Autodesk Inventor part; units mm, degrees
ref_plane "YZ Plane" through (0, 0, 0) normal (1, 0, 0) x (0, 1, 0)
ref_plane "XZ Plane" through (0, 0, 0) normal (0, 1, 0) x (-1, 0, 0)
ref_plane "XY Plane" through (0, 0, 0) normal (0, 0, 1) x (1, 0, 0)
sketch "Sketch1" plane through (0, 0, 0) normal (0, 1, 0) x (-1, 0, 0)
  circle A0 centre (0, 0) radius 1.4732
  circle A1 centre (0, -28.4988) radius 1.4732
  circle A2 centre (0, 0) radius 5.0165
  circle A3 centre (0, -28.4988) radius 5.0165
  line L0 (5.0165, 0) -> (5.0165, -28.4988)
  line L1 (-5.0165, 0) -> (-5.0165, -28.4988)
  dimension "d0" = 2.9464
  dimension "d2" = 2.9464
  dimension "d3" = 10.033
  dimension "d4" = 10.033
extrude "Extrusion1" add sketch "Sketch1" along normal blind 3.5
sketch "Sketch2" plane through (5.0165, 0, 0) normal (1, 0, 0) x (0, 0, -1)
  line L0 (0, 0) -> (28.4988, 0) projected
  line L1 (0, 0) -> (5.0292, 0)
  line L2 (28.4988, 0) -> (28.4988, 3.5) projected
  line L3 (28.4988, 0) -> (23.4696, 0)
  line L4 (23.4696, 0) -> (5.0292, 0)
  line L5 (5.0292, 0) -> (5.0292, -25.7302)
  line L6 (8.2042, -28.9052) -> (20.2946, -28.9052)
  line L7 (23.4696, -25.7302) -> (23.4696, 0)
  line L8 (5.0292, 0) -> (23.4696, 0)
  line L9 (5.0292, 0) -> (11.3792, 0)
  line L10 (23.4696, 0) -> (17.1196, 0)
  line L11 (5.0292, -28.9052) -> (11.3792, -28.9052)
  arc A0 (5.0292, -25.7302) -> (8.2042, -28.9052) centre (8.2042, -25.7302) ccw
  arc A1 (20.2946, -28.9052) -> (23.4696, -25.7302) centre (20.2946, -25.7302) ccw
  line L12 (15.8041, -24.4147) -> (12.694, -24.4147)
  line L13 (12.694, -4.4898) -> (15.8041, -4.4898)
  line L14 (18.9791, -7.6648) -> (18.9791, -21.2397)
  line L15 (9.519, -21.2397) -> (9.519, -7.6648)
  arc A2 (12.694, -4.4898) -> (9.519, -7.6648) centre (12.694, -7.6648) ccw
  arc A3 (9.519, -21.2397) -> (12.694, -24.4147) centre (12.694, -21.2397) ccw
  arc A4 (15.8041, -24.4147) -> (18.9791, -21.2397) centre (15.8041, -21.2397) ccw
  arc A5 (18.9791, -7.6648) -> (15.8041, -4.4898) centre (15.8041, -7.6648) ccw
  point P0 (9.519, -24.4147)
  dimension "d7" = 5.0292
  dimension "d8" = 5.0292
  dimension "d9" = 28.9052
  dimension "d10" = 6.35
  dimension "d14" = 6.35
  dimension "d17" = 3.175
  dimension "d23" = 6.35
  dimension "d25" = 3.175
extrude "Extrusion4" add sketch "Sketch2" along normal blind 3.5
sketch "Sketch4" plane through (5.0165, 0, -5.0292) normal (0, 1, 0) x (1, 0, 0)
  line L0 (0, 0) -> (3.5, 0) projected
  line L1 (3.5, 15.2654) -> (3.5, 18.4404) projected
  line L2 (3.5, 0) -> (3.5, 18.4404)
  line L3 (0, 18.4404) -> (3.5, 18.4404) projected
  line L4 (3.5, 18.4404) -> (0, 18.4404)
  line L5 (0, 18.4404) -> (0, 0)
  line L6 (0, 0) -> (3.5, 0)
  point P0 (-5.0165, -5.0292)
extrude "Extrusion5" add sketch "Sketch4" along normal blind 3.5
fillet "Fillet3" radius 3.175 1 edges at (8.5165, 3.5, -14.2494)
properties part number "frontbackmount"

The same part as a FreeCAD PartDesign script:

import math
import FreeCAD as App
import Part
import Sketcher
Q = App.Units.Quantity


def edges_at(feature, points):
    """Names of the edges that pass closest to the given points."""
    edges = feature.Shape.Edges
    near = lambda p: min(range(len(edges)), key=lambda i: edges[i].distToShape(Part.Vertex(*p))[0])
    return sorted({f"Edge{near(p) + 1}" for p in points})

doc = App.newDocument("Part")
body = doc.addObject("PartDesign::Body", "Body")
body.AllowCompound = True

sketch1 = body.newObject("Sketcher::SketchObject", "Sketch")
sketch1.AttachmentSupport = (doc.getObject("XZ_Plane"), [""])
sketch1.MapMode = "FlatFace"
sketch1.addGeometry([
    Part.ArcOfCircle(Part.Circle(App.Vector(0, 0, 0), App.Vector(0, 0, 1), 5), math.radians(0), math.radians(180)),
    Part.LineSegment(App.Vector(5, 0, 0), App.Vector(5, -28.5, 0)),
    Part.ArcOfCircle(Part.Circle(App.Vector(0, -28.5, 0), App.Vector(0, 0, 1), 5), math.radians(180), math.radians(360)),
    Part.LineSegment(App.Vector(-5, -28.5, 0), App.Vector(-5, 0, 0)),
    Part.Circle(App.Vector(0, 0, 0), App.Vector(0, 0, 1), 1.5),
    Part.Circle(App.Vector(0, -28.5, 0), App.Vector(0, 0, 1), 1.5),
], False)
sketch1.addConstraint([
    Sketcher.Constraint("Tangent", 0, 1, 1, 1),
    Sketcher.Constraint("Tangent", 1, 2, 2, 2),
    Sketcher.Constraint("Tangent", 2, 1, 3, 1),
    Sketcher.Constraint("Tangent", 3, 2, 0, 2),
    Sketcher.Constraint("Vertical", 1),
    Sketcher.Constraint("Vertical", 3),
    Sketcher.Constraint("Coincident", 0, 3, -1, 1),
    Sketcher.Constraint("Coincident", 4, 3, -1, 1),
    Sketcher.Constraint("Coincident", 5, 3, 2, 3),
    Sketcher.Constraint("Equal", 4, 5),
    Sketcher.Constraint("Diameter", 4, Q("0.116 in")),
    Sketcher.Constraint("Radius", 0, Q("0.1975 in")),
    Sketcher.Constraint("DistanceY", 1, 2, 1, 1, Q("1.122 in")),
])
pad1 = body.newObject("PartDesign::Pad", "Pad")
pad1.Profile = sketch1
pad1.Length = Q("0.1377953 in")
pad1.Reversed = True

sketch2 = body.newObject("Sketcher::SketchObject", "Sketch001")
sketch2.AttachmentSupport = (doc.getObject("YZ_Plane"), [""])
sketch2.MapMode = "FlatFace"
sketch2.AttachmentOffset = App.Placement(App.Vector(0, 0, 0.1975 * 25.4), App.Rotation())
sketch2.addGeometry([
    Part.LineSegment(App.Vector(0, -23.5, 0), App.Vector(0, -5, 0)),
    Part.LineSegment(App.Vector(0, -5, 0), App.Vector(-25.7, -5, 0)),
    Part.ArcOfCircle(Part.Circle(App.Vector(-25.7, -8.2, 0), App.Vector(0, 0, 1), 3.2), math.radians(90), math.radians(180)),
    Part.LineSegment(App.Vector(-28.9, -8.2, 0), App.Vector(-28.9, -20.3, 0)),
    Part.ArcOfCircle(Part.Circle(App.Vector(-25.7, -20.3, 0), App.Vector(0, 0, 1), 3.2), math.radians(180), math.radians(270)),
    Part.LineSegment(App.Vector(-25.7, -23.5, 0), App.Vector(0, -23.5, 0)),
    Part.ArcOfCircle(Part.Circle(App.Vector(-21.2, -15.8, 0), App.Vector(0, 0, 1), 3.2), math.radians(180), math.radians(270)),
    Part.LineSegment(App.Vector(-24.4, -15.8, 0), App.Vector(-24.4, -12.7, 0)),
    Part.ArcOfCircle(Part.Circle(App.Vector(-21.2, -12.7, 0), App.Vector(0, 0, 1), 3.2), math.radians(90), math.radians(180)),
    Part.LineSegment(App.Vector(-21.2, -9.5, 0), App.Vector(-7.7, -9.5, 0)),
    Part.ArcOfCircle(Part.Circle(App.Vector(-7.7, -12.7, 0), App.Vector(0, 0, 1), 3.2), math.radians(0), math.radians(90)),
    Part.LineSegment(App.Vector(-4.5, -12.7, 0), App.Vector(-4.5, -15.8, 0)),
    Part.ArcOfCircle(Part.Circle(App.Vector(-7.7, -15.8, 0), App.Vector(0, 0, 1), 3.2), math.radians(-90), math.radians(0)),
    Part.LineSegment(App.Vector(-7.7, -19, 0), App.Vector(-21.2, -19, 0)),
], False)
sketch2.addConstraint([
    Sketcher.Constraint("Coincident", 0, 2, 1, 1),
    Sketcher.Constraint("Tangent", 1, 2, 2, 1),
    Sketcher.Constraint("Tangent", 2, 2, 3, 1),
    Sketcher.Constraint("Tangent", 3, 2, 4, 1),
    Sketcher.Constraint("Tangent", 4, 2, 5, 1),
    Sketcher.Constraint("Coincident", 5, 2, 0, 1),
    Sketcher.Constraint("Tangent", 6, 1, 7, 1),
    Sketcher.Constraint("Tangent", 7, 2, 8, 2),
    Sketcher.Constraint("Tangent", 8, 1, 9, 1),
    Sketcher.Constraint("Tangent", 9, 2, 10, 2),
    Sketcher.Constraint("Tangent", 10, 1, 11, 1),
    Sketcher.Constraint("Tangent", 11, 2, 12, 2),
    Sketcher.Constraint("Tangent", 12, 1, 13, 1),
    Sketcher.Constraint("Tangent", 13, 2, 6, 2),
    Sketcher.Constraint("Vertical", 0),
    Sketcher.Constraint("Horizontal", 1),
    Sketcher.Constraint("Vertical", 3),
    Sketcher.Constraint("Horizontal", 5),
    Sketcher.Constraint("Vertical", 7),
    Sketcher.Constraint("Horizontal", 9),
    Sketcher.Constraint("Vertical", 11),
    Sketcher.Constraint("Horizontal", 13),
    Sketcher.Constraint("Equal", 2, 4),
    Sketcher.Constraint("Equal", 4, 6),
    Sketcher.Constraint("Equal", 6, 8),
    Sketcher.Constraint("Equal", 8, 10),
    Sketcher.Constraint("Equal", 10, 12),
    Sketcher.Constraint("PointOnObject", 0, 2, -2),
    Sketcher.Constraint("Radius", 2, Q("0.125 in")),
    Sketcher.Constraint("DistanceY", 0, 2, -1, 1, Q("0.198 in")),
    Sketcher.Constraint("DistanceX", 2, 2, -1, 1, Q("1.138 in")),
    Sketcher.Constraint("DistanceY", 0, 1, 0, 2, Q("0.726 in")),
    Sketcher.Constraint("DistanceX", 9, 1, 9, 2, Q("13.575 mm")),
    Sketcher.Constraint("DistanceY", 7, 1, 7, 2, Q("3.11 mm")),
    Sketcher.Constraint("DistanceX", 6, 3, -1, 1, Q("0.8362 in")),
    Sketcher.Constraint("DistanceY", 6, 3, -1, 1, Q("0.6222 in")),
])
pad2 = body.newObject("PartDesign::Pad", "Pad001")
pad2.Profile = sketch2
pad2.Length = Q("0.1377953 in")

sketch3 = body.newObject("Sketcher::SketchObject", "Sketch002")
sketch3.AttachmentSupport = (doc.getObject("XZ_Plane"), [""])
sketch3.MapMode = "FlatFace"
sketch3.addGeometry([
    Part.LineSegment(App.Vector(5, -23.5, 0), App.Vector(5, -5, 0)),
    Part.LineSegment(App.Vector(5, -5, 0), App.Vector(8.5, -5, 0)),
    Part.LineSegment(App.Vector(8.5, -5, 0), App.Vector(8.5, -23.5, 0)),
    Part.LineSegment(App.Vector(8.5, -23.5, 0), App.Vector(5, -23.5, 0)),
], False)
sketch3.addConstraint([
    Sketcher.Constraint("Coincident", 0, 2, 1, 1),
    Sketcher.Constraint("Coincident", 1, 2, 2, 1),
    Sketcher.Constraint("Coincident", 2, 2, 3, 1),
    Sketcher.Constraint("Coincident", 3, 2, 0, 1),
    Sketcher.Constraint("Vertical", 0),
    Sketcher.Constraint("Horizontal", 1),
    Sketcher.Constraint("Vertical", 2),
    Sketcher.Constraint("Horizontal", 3),
    Sketcher.Constraint("DistanceY", 0, 1, 0, 2, Q("0.726 in")),
    Sketcher.Constraint("DistanceX", 1, 1, 1, 2, Q("0.1378 in")),
    Sketcher.Constraint("DistanceY", 0, 2, -1, 1, Q("0.198 in")),
    Sketcher.Constraint("DistanceX", -1, 1, 0, 2, Q("0.1975 in")),
])
pad3 = body.newObject("PartDesign::Pad", "Pad002")
pad3.Profile = sketch3
pad3.Length = Q("0.1377953 in")
pad3.Reversed = True
doc.recompute()

fillet = body.newObject("PartDesign::Fillet", "Fillet")
fillet.Base = (pad3, edges_at(pad3, [(8.517, 3.5, -14.249)]))
fillet.Radius = Q("0.125 in")

doc.recompute()
